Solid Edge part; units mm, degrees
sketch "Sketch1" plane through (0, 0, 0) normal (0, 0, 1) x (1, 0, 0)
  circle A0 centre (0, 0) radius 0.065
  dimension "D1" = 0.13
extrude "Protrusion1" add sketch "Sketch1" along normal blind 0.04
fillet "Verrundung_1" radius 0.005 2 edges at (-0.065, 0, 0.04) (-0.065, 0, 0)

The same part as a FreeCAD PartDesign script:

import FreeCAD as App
import Part
import Sketcher
Q = App.Units.Quantity


def edges_at(feature, points):
    """Names of the edges that pass closest to the given points."""
    edges = feature.Shape.Edges
    near = lambda p: min(range(len(edges)), key=lambda i: edges[i].distToShape(Part.Vertex(*p))[0])
    return sorted({f"Edge{near(p) + 1}" for p in points})

doc = App.newDocument("Part")
params = doc.addObject("Spreadsheet::Sheet", "Params")
for row, (alias, value) in enumerate([
    ("sketch1_diameter", "0.13 mm"),
    ("pad1_length", "0.04 mm"),
    ("fillet_radius", "0.005 mm"),
], start=1):
    params.set(f"A{row}", alias)
    params.set(f"B{row}", "=" + value)
    params.setAlias(f"B{row}", alias)

body = doc.addObject("PartDesign::Body", "Body")

# Sketch on XY plane
sketch1 = body.newObject("Sketcher::SketchObject", "Sketch")
sketch1.AttachmentSupport = (doc.getObject("XY_Plane"), [""])
sketch1.MapMode = "FlatFace"
sketch1.addGeometry(Part.Circle(App.Vector(0, 0, 0), App.Vector(0, 0, 1), 0.07), False)
sketch1.addConstraint([
    Sketcher.Constraint("Coincident", 0, 3, -1, 1),
    Sketcher.Constraint("Diameter", 0, Q("0.13 mm")),
])
sketch1.setExpression("Constraints[1]", "Params.sketch1_diameter")
pad1 = body.newObject("PartDesign::Pad", "Pad")
pad1.Profile = sketch1
pad1.setExpression("Length", "Params.pad1_length")
doc.recompute()

fillet = body.newObject("PartDesign::Fillet", "Fillet")
fillet.Base = (pad1, edges_at(pad1, [(-0.065, 0, 0.04), (-0.065, 0, 0)]))
fillet.setExpression("Radius", "Params.fillet_radius")

doc.recompute()
